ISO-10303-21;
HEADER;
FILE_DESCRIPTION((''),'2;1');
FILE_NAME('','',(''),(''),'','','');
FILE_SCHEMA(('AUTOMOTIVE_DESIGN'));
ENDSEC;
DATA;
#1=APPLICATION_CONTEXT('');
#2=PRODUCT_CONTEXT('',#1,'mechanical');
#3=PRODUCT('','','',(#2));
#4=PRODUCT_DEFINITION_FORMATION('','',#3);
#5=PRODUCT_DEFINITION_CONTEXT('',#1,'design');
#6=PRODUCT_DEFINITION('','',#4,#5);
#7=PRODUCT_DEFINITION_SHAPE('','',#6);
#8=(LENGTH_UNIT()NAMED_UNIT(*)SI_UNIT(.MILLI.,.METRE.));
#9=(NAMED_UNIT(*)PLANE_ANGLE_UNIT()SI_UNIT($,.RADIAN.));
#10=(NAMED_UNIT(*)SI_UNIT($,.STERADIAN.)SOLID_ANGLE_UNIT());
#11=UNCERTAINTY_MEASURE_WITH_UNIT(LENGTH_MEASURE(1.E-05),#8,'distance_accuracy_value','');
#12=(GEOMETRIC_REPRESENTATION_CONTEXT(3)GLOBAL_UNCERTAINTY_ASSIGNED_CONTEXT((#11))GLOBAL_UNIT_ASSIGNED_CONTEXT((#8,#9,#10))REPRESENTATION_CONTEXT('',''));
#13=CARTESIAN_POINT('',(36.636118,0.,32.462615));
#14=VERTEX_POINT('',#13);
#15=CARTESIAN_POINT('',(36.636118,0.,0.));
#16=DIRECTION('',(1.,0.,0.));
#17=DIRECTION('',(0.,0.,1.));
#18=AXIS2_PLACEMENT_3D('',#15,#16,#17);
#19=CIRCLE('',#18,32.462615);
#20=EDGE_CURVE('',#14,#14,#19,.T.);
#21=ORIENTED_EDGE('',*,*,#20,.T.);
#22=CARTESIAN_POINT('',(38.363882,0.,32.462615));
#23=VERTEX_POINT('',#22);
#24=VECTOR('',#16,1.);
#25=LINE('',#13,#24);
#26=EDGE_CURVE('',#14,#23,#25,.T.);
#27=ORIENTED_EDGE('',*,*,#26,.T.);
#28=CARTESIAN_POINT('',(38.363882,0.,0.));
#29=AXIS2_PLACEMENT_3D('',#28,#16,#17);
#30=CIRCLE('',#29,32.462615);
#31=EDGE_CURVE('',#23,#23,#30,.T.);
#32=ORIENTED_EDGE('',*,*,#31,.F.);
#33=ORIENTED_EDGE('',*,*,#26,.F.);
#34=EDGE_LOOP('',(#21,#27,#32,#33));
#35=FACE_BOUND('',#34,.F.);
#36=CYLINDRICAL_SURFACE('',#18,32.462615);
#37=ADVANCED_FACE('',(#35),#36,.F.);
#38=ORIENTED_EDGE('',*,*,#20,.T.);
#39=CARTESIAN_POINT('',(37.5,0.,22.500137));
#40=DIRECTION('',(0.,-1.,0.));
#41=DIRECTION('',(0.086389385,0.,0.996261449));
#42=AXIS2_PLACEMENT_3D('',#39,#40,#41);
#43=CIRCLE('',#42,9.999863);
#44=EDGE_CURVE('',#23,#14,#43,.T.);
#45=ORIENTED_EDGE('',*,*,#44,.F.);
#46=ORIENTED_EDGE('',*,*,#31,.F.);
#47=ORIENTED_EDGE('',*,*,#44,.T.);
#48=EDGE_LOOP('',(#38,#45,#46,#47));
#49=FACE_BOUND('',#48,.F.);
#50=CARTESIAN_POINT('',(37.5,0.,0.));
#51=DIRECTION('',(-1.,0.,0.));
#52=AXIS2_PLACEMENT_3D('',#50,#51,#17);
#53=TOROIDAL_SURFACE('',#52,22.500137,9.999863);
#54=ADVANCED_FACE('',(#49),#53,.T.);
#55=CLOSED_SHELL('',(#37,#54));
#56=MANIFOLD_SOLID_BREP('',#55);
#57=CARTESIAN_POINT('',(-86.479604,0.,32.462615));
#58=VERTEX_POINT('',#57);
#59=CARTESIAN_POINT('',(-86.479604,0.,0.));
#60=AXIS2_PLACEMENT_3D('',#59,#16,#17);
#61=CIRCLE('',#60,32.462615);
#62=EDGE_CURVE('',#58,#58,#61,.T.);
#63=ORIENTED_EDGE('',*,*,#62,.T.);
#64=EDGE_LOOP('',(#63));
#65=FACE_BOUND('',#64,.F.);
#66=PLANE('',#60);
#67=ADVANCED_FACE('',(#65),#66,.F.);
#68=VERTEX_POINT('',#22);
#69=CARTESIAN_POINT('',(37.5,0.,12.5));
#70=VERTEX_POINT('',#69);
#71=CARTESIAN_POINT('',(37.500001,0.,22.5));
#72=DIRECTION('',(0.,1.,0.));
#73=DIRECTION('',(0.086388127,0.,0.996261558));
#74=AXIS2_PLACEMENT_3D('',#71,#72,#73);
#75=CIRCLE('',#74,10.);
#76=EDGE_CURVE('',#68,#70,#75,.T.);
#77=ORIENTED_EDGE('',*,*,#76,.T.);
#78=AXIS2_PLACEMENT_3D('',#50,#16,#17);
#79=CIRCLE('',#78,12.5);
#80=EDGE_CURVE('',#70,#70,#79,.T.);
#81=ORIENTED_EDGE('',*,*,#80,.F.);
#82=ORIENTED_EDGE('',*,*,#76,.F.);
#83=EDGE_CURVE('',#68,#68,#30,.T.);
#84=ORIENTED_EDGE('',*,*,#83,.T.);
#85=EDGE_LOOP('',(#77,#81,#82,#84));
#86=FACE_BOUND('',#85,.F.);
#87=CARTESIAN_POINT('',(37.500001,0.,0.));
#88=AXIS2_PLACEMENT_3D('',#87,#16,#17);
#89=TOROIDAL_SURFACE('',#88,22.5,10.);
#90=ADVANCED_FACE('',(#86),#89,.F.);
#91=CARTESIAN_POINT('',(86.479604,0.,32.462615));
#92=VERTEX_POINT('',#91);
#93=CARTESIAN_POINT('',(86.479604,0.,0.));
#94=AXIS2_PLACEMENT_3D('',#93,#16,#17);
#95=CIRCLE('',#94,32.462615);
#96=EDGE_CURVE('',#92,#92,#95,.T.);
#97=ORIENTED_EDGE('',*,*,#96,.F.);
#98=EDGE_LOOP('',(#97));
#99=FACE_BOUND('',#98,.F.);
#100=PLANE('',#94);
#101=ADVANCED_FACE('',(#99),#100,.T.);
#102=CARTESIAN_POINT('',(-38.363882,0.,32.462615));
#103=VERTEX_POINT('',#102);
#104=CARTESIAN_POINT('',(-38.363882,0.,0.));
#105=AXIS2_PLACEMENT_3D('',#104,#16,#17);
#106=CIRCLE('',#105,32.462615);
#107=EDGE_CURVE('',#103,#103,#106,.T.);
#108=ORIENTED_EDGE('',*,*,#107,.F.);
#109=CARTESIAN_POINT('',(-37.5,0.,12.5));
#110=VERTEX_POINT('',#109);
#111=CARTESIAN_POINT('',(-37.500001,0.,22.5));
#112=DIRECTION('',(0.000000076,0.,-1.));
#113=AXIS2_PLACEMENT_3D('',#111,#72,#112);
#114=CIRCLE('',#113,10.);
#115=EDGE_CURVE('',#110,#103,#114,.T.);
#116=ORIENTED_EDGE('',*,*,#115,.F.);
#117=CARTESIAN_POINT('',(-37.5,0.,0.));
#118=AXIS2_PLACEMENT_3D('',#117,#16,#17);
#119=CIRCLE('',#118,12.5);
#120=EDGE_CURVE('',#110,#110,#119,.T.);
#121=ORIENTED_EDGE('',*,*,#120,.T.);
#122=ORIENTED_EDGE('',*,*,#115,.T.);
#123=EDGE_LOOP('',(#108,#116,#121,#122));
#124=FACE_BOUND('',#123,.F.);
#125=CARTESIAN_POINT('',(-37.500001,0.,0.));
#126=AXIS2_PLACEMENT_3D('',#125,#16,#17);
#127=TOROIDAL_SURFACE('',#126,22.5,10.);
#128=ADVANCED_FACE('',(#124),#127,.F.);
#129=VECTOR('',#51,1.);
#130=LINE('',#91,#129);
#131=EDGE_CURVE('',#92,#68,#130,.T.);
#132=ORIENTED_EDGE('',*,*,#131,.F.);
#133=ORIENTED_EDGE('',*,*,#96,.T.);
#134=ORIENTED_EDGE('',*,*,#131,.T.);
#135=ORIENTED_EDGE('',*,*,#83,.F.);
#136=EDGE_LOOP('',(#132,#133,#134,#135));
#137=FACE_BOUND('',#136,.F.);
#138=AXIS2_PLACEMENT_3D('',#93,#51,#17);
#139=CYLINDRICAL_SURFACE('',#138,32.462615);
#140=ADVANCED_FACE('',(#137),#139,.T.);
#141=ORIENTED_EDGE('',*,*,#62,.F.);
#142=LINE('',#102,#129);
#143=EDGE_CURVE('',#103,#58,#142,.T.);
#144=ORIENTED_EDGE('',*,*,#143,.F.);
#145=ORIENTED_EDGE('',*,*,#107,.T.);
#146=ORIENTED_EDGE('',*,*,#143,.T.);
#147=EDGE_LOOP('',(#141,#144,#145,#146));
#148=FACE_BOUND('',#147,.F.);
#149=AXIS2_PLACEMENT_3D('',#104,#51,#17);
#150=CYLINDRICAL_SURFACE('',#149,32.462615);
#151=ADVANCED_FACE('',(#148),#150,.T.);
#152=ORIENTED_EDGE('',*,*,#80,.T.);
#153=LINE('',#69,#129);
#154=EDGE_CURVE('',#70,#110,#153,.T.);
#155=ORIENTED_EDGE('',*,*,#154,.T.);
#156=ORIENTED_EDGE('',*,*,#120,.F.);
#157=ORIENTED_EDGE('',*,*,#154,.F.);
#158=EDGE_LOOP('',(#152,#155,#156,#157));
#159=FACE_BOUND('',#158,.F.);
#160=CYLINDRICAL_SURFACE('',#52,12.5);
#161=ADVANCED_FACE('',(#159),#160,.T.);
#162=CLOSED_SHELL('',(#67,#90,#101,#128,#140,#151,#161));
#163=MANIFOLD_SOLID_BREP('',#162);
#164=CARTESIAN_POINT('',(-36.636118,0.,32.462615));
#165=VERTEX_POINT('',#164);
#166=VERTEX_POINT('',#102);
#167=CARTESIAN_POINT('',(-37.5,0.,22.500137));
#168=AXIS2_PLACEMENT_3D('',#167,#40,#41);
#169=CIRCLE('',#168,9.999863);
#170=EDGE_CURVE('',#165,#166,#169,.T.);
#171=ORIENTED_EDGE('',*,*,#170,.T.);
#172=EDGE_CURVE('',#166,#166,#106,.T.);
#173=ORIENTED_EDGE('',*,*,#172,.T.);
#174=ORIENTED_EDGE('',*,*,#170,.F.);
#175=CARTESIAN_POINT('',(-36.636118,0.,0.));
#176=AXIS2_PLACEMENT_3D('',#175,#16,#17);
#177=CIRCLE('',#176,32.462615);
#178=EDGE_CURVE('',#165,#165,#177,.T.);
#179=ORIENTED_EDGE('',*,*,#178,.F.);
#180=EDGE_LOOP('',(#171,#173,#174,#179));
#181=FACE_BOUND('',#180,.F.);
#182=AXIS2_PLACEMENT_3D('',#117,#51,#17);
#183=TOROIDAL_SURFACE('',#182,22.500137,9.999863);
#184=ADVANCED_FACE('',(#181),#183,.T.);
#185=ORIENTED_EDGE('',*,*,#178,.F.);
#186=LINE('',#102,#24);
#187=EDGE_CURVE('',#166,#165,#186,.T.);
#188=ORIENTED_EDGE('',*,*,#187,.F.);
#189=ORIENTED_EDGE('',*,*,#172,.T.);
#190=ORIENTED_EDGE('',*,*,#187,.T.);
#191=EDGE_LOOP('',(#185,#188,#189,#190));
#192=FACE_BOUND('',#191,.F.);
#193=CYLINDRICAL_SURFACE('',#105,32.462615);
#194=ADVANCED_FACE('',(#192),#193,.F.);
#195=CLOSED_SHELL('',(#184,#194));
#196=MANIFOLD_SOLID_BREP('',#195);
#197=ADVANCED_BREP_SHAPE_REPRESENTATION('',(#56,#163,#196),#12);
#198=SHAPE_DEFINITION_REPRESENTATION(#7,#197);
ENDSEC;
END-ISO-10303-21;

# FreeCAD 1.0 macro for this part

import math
import FreeCAD as App
import Part
import Sketcher

doc = App.newDocument("Part")
body = doc.addObject("PartDesign::Body", "Body")
body.AllowCompound = True

# Sketch on XZ plane
sketch1 = body.newObject("Sketcher::SketchObject", "Sketch")
sketch1.AttachmentSupport = (doc.getObject("XZ_Plane"), [""])
sketch1.MapMode = "FlatFace"
sketch1.addGeometry(Part.LineSegment(App.Vector(36.6, 32.5, 0), App.Vector(38.4, 32.5, 0)), False)
sketch1.addGeometry(Part.ArcOfCircle(Part.Circle(App.Vector(37.5, 22.5, 0), App.Vector(0, 0, 1), 10), math.radians(85.04), math.radians(94.96)), False)
sketch1.addGeometry(Part.ArcOfCircle(Part.Circle(App.Vector(-37.5, 22.5, 0), App.Vector(0, 0, 1), 10), math.radians(85.04), math.radians(94.96)), False)
sketch1.addGeometry(Part.LineSegment(App.Vector(-38.4, 32.5, 0), App.Vector(-36.6, 32.5, 0)), False)
sketch1.addGeometry(Part.LineSegment(App.Vector(37.5, 12.5, 0), App.Vector(-37.5, 12.5, 0)), False)
sketch1.addGeometry(Part.ArcOfCircle(Part.Circle(App.Vector(-37.5, 22.5, 0), App.Vector(0, 0, 1), 10), math.radians(95), math.radians(270)), False)
sketch1.addGeometry(Part.LineSegment(App.Vector(-38.4, 32.5, 0), App.Vector(-86.5, 32.5, 0)), False)
sketch1.addGeometry(Part.LineSegment(App.Vector(-86.5, 32.5, 0), App.Vector(-86.5, 0, 0)), False)
sketch1.addGeometry(Part.LineSegment(App.Vector(-86.5, 0, 0), App.Vector(86.5, 0, 0)), False)
sketch1.addGeometry(Part.LineSegment(App.Vector(86.5, 0, 0), App.Vector(86.5, 32.5, 0)), False)
sketch1.addGeometry(Part.LineSegment(App.Vector(86.5, 32.5, 0), App.Vector(38.4, 32.5, 0)), False)
sketch1.addGeometry(Part.ArcOfCircle(Part.Circle(App.Vector(37.5, 22.5, 0), App.Vector(0, 0, 1), 10), math.radians(-90), math.radians(85)), False)
sketch1.addConstraint(Sketcher.Constraint("Coincident", 0, 1, 1, 2))
sketch1.addConstraint(Sketcher.Constraint("Coincident", 1, 1, 0, 2))
sketch1.addConstraint(Sketcher.Constraint("Coincident", 2, 1, 3, 2))
sketch1.addConstraint(Sketcher.Constraint("Coincident", 3, 1, 2, 2))
sketch1.addConstraint(Sketcher.Constraint("Tangent", 4, 2, 5, 2))
sketch1.addConstraint(Sketcher.Constraint("Coincident", 5, 1, 6, 1))
sketch1.addConstraint(Sketcher.Constraint("Coincident", 6, 2, 7, 1))
sketch1.addConstraint(Sketcher.Constraint("Coincident", 7, 2, 8, 1))
sketch1.addConstraint(Sketcher.Constraint("Coincident", 8, 2, 9, 1))
sketch1.addConstraint(Sketcher.Constraint("Coincident", 9, 2, 10, 1))
sketch1.addConstraint(Sketcher.Constraint("Coincident", 10, 2, 11, 2))
sketch1.addConstraint(Sketcher.Constraint("Tangent", 11, 1, 4, 1))
sketch1.addConstraint(Sketcher.Constraint("Horizontal", 0))
sketch1.addConstraint(Sketcher.Constraint("Horizontal", 3))
sketch1.addConstraint(Sketcher.Constraint("Horizontal", 4))
sketch1.addConstraint(Sketcher.Constraint("Horizontal", 6))
sketch1.addConstraint(Sketcher.Constraint("Vertical", 7))
sketch1.addConstraint(Sketcher.Constraint("Horizontal", 8))
sketch1.addConstraint(Sketcher.Constraint("Vertical", 9))
sketch1.addConstraint(Sketcher.Constraint("Horizontal", 10))
sketch1.addConstraint(Sketcher.Constraint("Coincident", 5, 1, 3, 1))
sketch1.addConstraint(Sketcher.Constraint("Coincident", 10, 2, 1, 1))
sketch1.addConstraint(Sketcher.Constraint("Equal", 1, 2))
sketch1.addConstraint(Sketcher.Constraint("Equal", 5, 11))
sketch1.addConstraint(Sketcher.Constraint("Symmetric", 7, 2, 8, 2, -1, 1))
sketch1.addConstraint(Sketcher.Constraint("Symmetric", 1, 3, 2, 3, -2))
sketch1.addConstraint(Sketcher.Constraint("Horizontal", 1, 1, 2, 1))
sketch1.addConstraint(Sketcher.Constraint("Vertical", 2, 3, 5, 3))
sketch1.addConstraint(Sketcher.Constraint("Radius", 5, 10.0))
sketch1.addConstraint(Sketcher.Constraint("DistanceX", 4, 2, 4, 1, 75.0))
sketch1.addConstraint(Sketcher.Constraint("DistanceY", -1, 1, 5, 3, 22.5))
sketch1.addConstraint(Sketcher.Constraint("Radius", 1, 9.999863))
sketch1.addConstraint(Sketcher.Constraint("DistanceX", 6, 2, 6, 1, 48.115722))
sketch1.addConstraint(Sketcher.Constraint("DistanceX", 0, 1, 0, 2, 1.727764))
revolution = body.newObject("PartDesign::Revolution", "Revolution")
revolution.Profile = sketch1
revolution.ReferenceAxis = (sketch1, ["H_Axis"])
revolution.Angle = 360

doc.recompute()
